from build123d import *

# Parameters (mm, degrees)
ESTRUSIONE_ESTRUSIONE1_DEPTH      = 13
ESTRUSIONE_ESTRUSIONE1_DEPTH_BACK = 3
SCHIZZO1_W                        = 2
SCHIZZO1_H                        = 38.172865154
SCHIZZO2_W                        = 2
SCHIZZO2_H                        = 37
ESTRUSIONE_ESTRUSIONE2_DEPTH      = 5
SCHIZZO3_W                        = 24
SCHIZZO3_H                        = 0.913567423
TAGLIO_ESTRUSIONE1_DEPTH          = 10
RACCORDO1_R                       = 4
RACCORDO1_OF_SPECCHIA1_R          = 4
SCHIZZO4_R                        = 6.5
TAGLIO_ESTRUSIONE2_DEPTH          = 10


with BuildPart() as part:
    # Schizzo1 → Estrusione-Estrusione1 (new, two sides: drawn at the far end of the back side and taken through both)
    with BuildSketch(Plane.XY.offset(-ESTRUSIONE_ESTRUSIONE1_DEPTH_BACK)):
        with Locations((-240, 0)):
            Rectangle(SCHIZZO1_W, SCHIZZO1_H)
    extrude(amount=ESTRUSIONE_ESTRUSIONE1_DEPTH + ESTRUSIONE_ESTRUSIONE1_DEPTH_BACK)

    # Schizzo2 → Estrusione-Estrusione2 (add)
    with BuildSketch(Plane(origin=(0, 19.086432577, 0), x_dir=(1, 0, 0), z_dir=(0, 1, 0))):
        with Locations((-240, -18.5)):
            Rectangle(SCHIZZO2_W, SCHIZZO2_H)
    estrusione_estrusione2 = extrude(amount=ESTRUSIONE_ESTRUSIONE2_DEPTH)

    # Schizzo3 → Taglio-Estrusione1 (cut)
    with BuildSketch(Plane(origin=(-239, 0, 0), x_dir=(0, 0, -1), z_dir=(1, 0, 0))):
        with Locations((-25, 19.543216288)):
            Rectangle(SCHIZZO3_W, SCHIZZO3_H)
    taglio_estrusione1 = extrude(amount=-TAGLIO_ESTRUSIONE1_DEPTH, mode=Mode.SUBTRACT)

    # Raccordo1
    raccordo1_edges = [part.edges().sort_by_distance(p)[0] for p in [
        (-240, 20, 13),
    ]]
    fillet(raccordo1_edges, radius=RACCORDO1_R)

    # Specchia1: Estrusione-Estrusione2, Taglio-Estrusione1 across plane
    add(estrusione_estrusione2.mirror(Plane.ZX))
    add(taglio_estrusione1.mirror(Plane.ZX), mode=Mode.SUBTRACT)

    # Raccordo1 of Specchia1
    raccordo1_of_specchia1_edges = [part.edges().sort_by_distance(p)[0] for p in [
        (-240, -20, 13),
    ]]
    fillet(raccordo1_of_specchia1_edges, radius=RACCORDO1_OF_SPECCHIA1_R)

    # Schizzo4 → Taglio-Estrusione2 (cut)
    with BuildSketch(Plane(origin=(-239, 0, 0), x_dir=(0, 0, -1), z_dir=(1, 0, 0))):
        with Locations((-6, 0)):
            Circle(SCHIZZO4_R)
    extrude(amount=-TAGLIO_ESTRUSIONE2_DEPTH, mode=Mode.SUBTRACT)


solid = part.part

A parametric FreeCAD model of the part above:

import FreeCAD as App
import Part
import Sketcher

V = App.Vector


def edges_at(feature, points):
    """Names of the edges that pass closest to the given points."""
    edges = feature.Shape.Edges
    near = lambda p: min(range(len(edges)), key=lambda i: edges[i].distToShape(Part.Vertex(*p))[0])
    return sorted({f"Edge{near(p) + 1}" for p in points})


def add_polygon(sketch, points):
    """Adds a closed chain of lines whose ends are joined by coincident constraints."""
    first, n = sketch.GeometryCount, len(points)
    for a, b in zip(points, points[1:] + points[:1]):
        sketch.addGeometry(Part.LineSegment(App.Vector(*a, 0), App.Vector(*b, 0)), False)
    for i in range(n):
        sketch.addConstraint(Sketcher.Constraint("Coincident", first + i, 2, first + (i + 1) % n, 1))

doc = App.newDocument("Part")
params = doc.addObject("Spreadsheet::Sheet", "Params")
for row, (alias, value) in enumerate([
    ("sketch1_width", "2 mm"),
    ("pad1_length", "13 mm"),
    ("pad1_length2", "3 mm"),
    ("sketch2_width", "2 mm"),
    ("sketch2_height", "37 mm"),
    ("pad2_length", "5 mm"),
    ("sketch3_height", "24 mm"),
    ("pocket1_length", "10 mm"),
    ("fillet_radius", "4 mm"),
    ("fillet2_radius", "4 mm"),
    ("sketch4_diameter", "13 mm"),
    ("pocket2_length", "10 mm"),
], start=1):
    params.set(f"A{row}", alias)
    params.set(f"B{row}", "=" + value)
    params.setAlias(f"B{row}", alias)

body = doc.addObject("PartDesign::Body", "Body")

# Sketch on XY plane
sketch1 = body.newObject("Sketcher::SketchObject", "Sketch")
sketch1.AttachmentSupport = (doc.getObject("XY_Plane"), [""])
sketch1.MapMode = "FlatFace"
add_polygon(sketch1, [(-241, 19.1), (-241, -19.1), (-239, -19.1), (-239, 19.1)])  # lines 0-3
sketch1.addConstraint([
    Sketcher.Constraint("Vertical", 0),
    Sketcher.Constraint("Horizontal", 1),
    Sketcher.Constraint("Vertical", 2),
    Sketcher.Constraint("Horizontal", 3),
    Sketcher.Constraint("DistanceX", 1, 1, 1, 2, 2.0),
    Sketcher.Constraint("DistanceX", 0, 2, -1, 1, 241.0),
    Sketcher.Constraint("DistanceY", 0, 2, 0, 1, 38.172865),
    Sketcher.Constraint("DistanceY", 0, 2, -1, 1, 19.086433),
])
sketch1.setExpression("Constraints[8]", "Params.sketch1_width")
pad1 = body.newObject("PartDesign::Pad", "Pad")
pad1.Profile = sketch1
pad1.Type = "TwoLengths"
pad1.setExpression("Length", "Params.pad1_length")
pad1.setExpression("Length2", "Params.pad1_length2")

# Sketch on XZ plane
sketch2 = body.newObject("Sketcher::SketchObject", "Sketch001")
sketch2.AttachmentSupport = (doc.getObject("XZ_Plane"), [""])
sketch2.MapMode = "FlatFace"
sketch2.AttachmentOffset = App.Placement(V(0, 0, -19.086433), App.Rotation())
add_polygon(sketch2, [(-241, 0), (-241, 37), (-239, 37), (-239, 0)])  # lines 0-3
sketch2.addConstraint([
    Sketcher.Constraint("Vertical", 0),
    Sketcher.Constraint("Horizontal", 1),
    Sketcher.Constraint("Vertical", 2),
    Sketcher.Constraint("Horizontal", 3),
    Sketcher.Constraint("PointOnObject", 2, 2, -1),
    Sketcher.Constraint("DistanceX", 1, 1, 1, 2, 2.0),
    Sketcher.Constraint("DistanceY", 0, 1, 0, 2, 37.0),
    Sketcher.Constraint("DistanceX", 0, 2, -1, 1, 241.0),
])
sketch2.setExpression("Constraints[9]", "Params.sketch2_width")
sketch2.setExpression("Constraints[10]", "Params.sketch2_height")
pad2 = body.newObject("PartDesign::Pad", "Pad001")
pad2.Profile = sketch2
pad2.setExpression("Length", "Params.pad2_length")
pad2.Reversed = True

# Sketch on YZ plane
sketch3 = body.newObject("Sketcher::SketchObject", "Sketch002")
sketch3.AttachmentSupport = (doc.getObject("YZ_Plane"), [""])
sketch3.MapMode = "FlatFace"
sketch3.AttachmentOffset = App.Placement(V(0, 0, -239), App.Rotation())
add_polygon(sketch3, [(20, 37), (19.1, 37), (19.1, 13), (20, 13)])  # lines 0-3
sketch3.addConstraint([
    Sketcher.Constraint("Horizontal", 0),
    Sketcher.Constraint("Vertical", 1),
    Sketcher.Constraint("Horizontal", 2),
    Sketcher.Constraint("Vertical", 3),
    Sketcher.Constraint("DistanceY", 1, 2, 1, 1, 24.0),
    Sketcher.Constraint("DistanceY", -1, 1, 0, 2, 37.0),
    Sketcher.Constraint("DistanceX", -1, 1, 2, 2, 20.0),
    Sketcher.Constraint("DistanceX", 0, 2, 0, 1, 0.913567),
])
sketch3.setExpression("Constraints[8]", "Params.sketch3_height")
pocket1 = body.newObject("PartDesign::Pocket", "Pocket")
pocket1.Profile = sketch3
pocket1.setExpression("Length", "Params.pocket1_length")
doc.recompute()

fillet = body.newObject("PartDesign::Fillet", "Fillet")
fillet.Base = (pocket1, edges_at(pocket1, [(-240, 20, 13)]))
fillet.setExpression("Radius", "Params.fillet_radius")
doc.recompute()

mirrored = body.newObject("PartDesign::Mirrored", "Mirrored")
mirrored.Originals = [pad2, pocket1]
mirrored.MirrorPlane = (doc.getObject("XZ_Plane"), [""])
body.Tip = mirrored
doc.recompute()

fillet2 = body.newObject("PartDesign::Fillet", "Fillet001")
fillet2.Base = (mirrored, edges_at(mirrored, [(-240, -20, 13)]))
fillet2.setExpression("Radius", "Params.fillet2_radius")

# Sketch on YZ plane
sketch4 = body.newObject("Sketcher::SketchObject", "Sketch003")
sketch4.AttachmentSupport = (doc.getObject("YZ_Plane"), [""])
sketch4.MapMode = "FlatFace"
sketch4.AttachmentOffset = App.Placement(V(0, 0, -239), App.Rotation())
sketch4.addGeometry(Part.Circle(V(0, 6, 0), V(0, 0, 1), 6), False)
sketch4.addConstraint([
    Sketcher.Constraint("PointOnObject", 0, 3, -2),
    Sketcher.Constraint("Diameter", 0, 13.0),
    Sketcher.Constraint("DistanceY", -1, 1, 0, 3, 6.0),
])
sketch4.setExpression("Constraints[1]", "Params.sketch4_diameter")
pocket2 = body.newObject("PartDesign::Pocket", "Pocket001")
pocket2.Profile = sketch4
pocket2.setExpression("Length", "Params.pocket2_length")

doc.recompute()
